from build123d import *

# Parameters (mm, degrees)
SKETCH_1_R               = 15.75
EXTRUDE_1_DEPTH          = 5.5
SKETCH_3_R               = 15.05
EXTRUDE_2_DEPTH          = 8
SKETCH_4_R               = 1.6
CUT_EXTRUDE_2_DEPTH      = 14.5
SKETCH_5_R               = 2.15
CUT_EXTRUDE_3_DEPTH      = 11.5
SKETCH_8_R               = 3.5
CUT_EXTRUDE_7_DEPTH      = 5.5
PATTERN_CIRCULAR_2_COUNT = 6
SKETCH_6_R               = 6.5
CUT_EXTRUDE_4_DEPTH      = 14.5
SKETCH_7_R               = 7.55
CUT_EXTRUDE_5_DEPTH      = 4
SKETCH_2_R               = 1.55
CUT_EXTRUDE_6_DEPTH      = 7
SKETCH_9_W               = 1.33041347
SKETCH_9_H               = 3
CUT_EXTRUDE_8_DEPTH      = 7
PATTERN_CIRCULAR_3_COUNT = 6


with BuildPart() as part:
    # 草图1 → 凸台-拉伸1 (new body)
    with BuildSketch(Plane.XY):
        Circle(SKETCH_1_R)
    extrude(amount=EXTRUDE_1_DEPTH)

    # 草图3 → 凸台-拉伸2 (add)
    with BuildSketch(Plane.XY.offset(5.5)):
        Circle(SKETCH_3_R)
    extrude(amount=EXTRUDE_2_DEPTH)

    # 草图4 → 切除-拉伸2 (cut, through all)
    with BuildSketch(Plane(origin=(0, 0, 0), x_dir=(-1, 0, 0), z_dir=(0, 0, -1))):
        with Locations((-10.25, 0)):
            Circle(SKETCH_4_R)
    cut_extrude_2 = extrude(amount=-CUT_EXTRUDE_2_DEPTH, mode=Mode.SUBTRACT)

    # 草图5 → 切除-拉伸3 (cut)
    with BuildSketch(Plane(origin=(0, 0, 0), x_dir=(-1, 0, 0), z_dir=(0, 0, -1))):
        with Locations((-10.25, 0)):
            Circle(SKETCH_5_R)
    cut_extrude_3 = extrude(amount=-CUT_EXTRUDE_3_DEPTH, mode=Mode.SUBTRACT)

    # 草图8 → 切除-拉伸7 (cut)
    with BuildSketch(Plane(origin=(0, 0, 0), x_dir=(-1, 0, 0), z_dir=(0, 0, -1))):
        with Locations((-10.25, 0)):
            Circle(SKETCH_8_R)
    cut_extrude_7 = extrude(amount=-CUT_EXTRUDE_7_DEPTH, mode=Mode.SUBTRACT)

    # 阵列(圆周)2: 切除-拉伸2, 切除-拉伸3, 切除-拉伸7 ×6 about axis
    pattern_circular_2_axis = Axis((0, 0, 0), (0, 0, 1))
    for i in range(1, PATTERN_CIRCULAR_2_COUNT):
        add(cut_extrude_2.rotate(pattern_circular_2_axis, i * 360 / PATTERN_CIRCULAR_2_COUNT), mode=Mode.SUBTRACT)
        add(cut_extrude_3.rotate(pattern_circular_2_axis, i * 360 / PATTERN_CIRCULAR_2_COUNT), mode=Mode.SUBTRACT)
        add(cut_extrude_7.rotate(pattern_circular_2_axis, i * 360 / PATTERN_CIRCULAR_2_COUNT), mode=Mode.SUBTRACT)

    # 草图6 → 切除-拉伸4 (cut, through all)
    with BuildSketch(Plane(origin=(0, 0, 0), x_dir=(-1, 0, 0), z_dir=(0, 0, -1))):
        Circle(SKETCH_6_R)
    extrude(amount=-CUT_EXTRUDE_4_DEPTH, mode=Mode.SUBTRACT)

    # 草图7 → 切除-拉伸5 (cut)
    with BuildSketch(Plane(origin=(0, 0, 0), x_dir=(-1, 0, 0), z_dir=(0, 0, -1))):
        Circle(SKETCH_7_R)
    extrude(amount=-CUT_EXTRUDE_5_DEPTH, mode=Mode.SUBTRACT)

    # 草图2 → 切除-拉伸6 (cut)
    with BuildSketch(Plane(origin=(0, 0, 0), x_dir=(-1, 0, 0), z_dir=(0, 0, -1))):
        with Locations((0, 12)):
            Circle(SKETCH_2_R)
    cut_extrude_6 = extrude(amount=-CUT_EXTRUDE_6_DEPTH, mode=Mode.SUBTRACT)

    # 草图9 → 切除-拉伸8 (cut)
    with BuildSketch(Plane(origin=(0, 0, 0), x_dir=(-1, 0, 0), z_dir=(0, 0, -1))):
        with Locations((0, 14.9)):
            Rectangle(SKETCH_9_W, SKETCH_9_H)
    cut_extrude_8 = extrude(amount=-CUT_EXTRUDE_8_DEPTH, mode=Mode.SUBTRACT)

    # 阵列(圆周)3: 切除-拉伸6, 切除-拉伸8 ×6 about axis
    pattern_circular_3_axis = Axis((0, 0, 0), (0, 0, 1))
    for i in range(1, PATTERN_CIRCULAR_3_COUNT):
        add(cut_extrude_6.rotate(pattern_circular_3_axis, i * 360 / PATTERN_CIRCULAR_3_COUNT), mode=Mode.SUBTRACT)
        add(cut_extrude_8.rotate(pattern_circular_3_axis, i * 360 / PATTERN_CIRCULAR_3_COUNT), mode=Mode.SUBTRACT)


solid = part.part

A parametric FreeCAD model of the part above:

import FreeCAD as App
import Part
import Sketcher
from FreeCAD import Vector


def add_polygon(sketch, points):
    """Adds a closed chain of lines whose ends are joined by coincident constraints."""
    first, n = sketch.GeometryCount, len(points)
    for a, b in zip(points, points[1:] + points[:1]):
        sketch.addGeometry(Part.LineSegment(App.Vector(*a, 0), App.Vector(*b, 0)), False)
    for i in range(n):
        sketch.addConstraint(Sketcher.Constraint("Coincident", first + i, 2, first + (i + 1) % n, 1))

doc = App.newDocument("Part")
params = doc.addObject("Spreadsheet::Sheet", "Params")
for row, (alias, value) in enumerate([
    ("sketch1_diameter", "31.5 mm"),
    ("pad1_length", "5.5 mm"),
    ("sketch2_diameter", "30.1 mm"),
    ("pad2_length", "8 mm"),
    ("sketch3_diameter", "3.2 mm"),
    ("sketch4_diameter", "4.3 mm"),
    ("pocket2_length", "11.5 mm"),
    ("sketch5_diameter", "7 mm"),
    ("pocket3_length", "5.5 mm"),
    ("sketch6_diameter", "13 mm"),
    ("sketch7_diameter", "15.1 mm"),
    ("pocket5_length", "4 mm"),
    ("sketch8_diameter", "3.1 mm"),
    ("pocket6_length", "7 mm"),
    ("sketch9_height", "3 mm"),
    ("pocket7_length", "7 mm"),
], start=1):
    params.set(f"A{row}", alias)
    params.set(f"B{row}", "=" + value)
    params.setAlias(f"B{row}", alias)

body = doc.addObject("PartDesign::Body", "Body")

# Sketch on XY plane
sketch1 = body.newObject("Sketcher::SketchObject", "Sketch")
sketch1.AttachmentSupport = (doc.getObject("XY_Plane"), [""])
sketch1.MapMode = "FlatFace"
sketch1.addGeometry(Part.Circle(Vector(0, 0, 0), Vector(0, 0, 1), 16), False)
sketch1.addConstraint([
    Sketcher.Constraint("Coincident", 0, 3, -1, 1),
    Sketcher.Constraint("Diameter", 0, 31.5),
])
sketch1.setExpression("Constraints[1]", "Params.sketch1_diameter")
pad1 = body.newObject("PartDesign::Pad", "Pad")
pad1.Profile = sketch1
pad1.setExpression("Length", "Params.pad1_length")

# Sketch on XY plane
sketch2 = body.newObject("Sketcher::SketchObject", "Sketch001")
sketch2.AttachmentSupport = (doc.getObject("XY_Plane"), [""])
sketch2.MapMode = "FlatFace"
sketch2.AttachmentOffset = App.Placement(Vector(0, 0, 5.5), App.Rotation())
sketch2.addGeometry(Part.Circle(Vector(0, 0, 0), Vector(0, 0, 1), 15), False)
sketch2.addConstraint([
    Sketcher.Constraint("Coincident", 0, 3, -1, 1),
    Sketcher.Constraint("Diameter", 0, 30.1),
])
sketch2.setExpression("Constraints[1]", "Params.sketch2_diameter")
pad2 = body.newObject("PartDesign::Pad", "Pad001")
pad2.Profile = sketch2
pad2.setExpression("Length", "Params.pad2_length")

# Sketch on XY plane
sketch3 = body.newObject("Sketcher::SketchObject", "Sketch002")
sketch3.AttachmentSupport = (doc.getObject("XY_Plane"), [""])
sketch3.MapMode = "FlatFace"
sketch3.addGeometry(Part.Circle(Vector(10.2, 0, 0), Vector(0, 0, 1), 1.6), False)
sketch3.addConstraint([
    Sketcher.Constraint("PointOnObject", 0, 3, -1),
    Sketcher.Constraint("Diameter", 0, 3.2),
    Sketcher.Constraint("DistanceX", -1, 1, 0, 3, 10.25),
])
sketch3.setExpression("Constraints[1]", "Params.sketch3_diameter")
pocket1 = body.newObject("PartDesign::Pocket", "Pocket")
pocket1.Profile = sketch3
pocket1.Type = "ThroughAll"
pocket1.Reversed = True

# Sketch on XY plane
sketch4 = body.newObject("Sketcher::SketchObject", "Sketch003")
sketch4.AttachmentSupport = (doc.getObject("XY_Plane"), [""])
sketch4.MapMode = "FlatFace"
sketch4.addGeometry(Part.Circle(Vector(10.2, 0, 0), Vector(0, 0, 1), 2.1), False)
sketch4.addConstraint([
    Sketcher.Constraint("PointOnObject", 0, 3, -1),
    Sketcher.Constraint("Diameter", 0, 4.3),
    Sketcher.Constraint("DistanceX", -1, 1, 0, 3, 10.25),
])
sketch4.setExpression("Constraints[1]", "Params.sketch4_diameter")
pocket2 = body.newObject("PartDesign::Pocket", "Pocket001")
pocket2.Profile = sketch4
pocket2.setExpression("Length", "Params.pocket2_length")
pocket2.Reversed = True

# Sketch on XY plane
sketch5 = body.newObject("Sketcher::SketchObject", "Sketch004")
sketch5.AttachmentSupport = (doc.getObject("XY_Plane"), [""])
sketch5.MapMode = "FlatFace"
sketch5.addGeometry(Part.Circle(Vector(10.2, 0, 0), Vector(0, 0, 1), 3.5), False)
sketch5.addConstraint([
    Sketcher.Constraint("PointOnObject", 0, 3, -1),
    Sketcher.Constraint("Diameter", 0, 7.0),
    Sketcher.Constraint("DistanceX", -1, 1, 0, 3, 10.25),
])
sketch5.setExpression("Constraints[1]", "Params.sketch5_diameter")
pocket3 = body.newObject("PartDesign::Pocket", "Pocket002")
pocket3.Profile = sketch5
pocket3.setExpression("Length", "Params.pocket3_length")
pocket3.Reversed = True
doc.recompute()

polarpattern = body.newObject("PartDesign::PolarPattern", "PolarPattern")
polarpattern.Originals = [pocket1, pocket2, pocket3]
polarpattern.Axis = (doc.getObject("Z_Axis"), [""])
polarpattern.Angle = 360
polarpattern.Occurrences = 6
body.Tip = polarpattern

# Sketch on XY plane
sketch6 = body.newObject("Sketcher::SketchObject", "Sketch005")
sketch6.AttachmentSupport = (doc.getObject("XY_Plane"), [""])
sketch6.MapMode = "FlatFace"
sketch6.addGeometry(Part.Circle(Vector(0, 0, 0), Vector(0, 0, 1), 6), False)
sketch6.addConstraint([
    Sketcher.Constraint("Coincident", 0, 3, -1, 1),
    Sketcher.Constraint("Diameter", 0, 13.0),
])
sketch6.setExpression("Constraints[1]", "Params.sketch6_diameter")
pocket4 = body.newObject("PartDesign::Pocket", "Pocket003")
pocket4.Profile = sketch6
pocket4.Type = "ThroughAll"
pocket4.Reversed = True

# Sketch on XY plane
sketch7 = body.newObject("Sketcher::SketchObject", "Sketch006")
sketch7.AttachmentSupport = (doc.getObject("XY_Plane"), [""])
sketch7.MapMode = "FlatFace"
sketch7.addGeometry(Part.Circle(Vector(0, 0, 0), Vector(0, 0, 1), 8), False)
sketch7.addConstraint([
    Sketcher.Constraint("Coincident", 0, 3, -1, 1),
    Sketcher.Constraint("Diameter", 0, 15.1),
])
sketch7.setExpression("Constraints[1]", "Params.sketch7_diameter")
pocket5 = body.newObject("PartDesign::Pocket", "Pocket004")
pocket5.Profile = sketch7
pocket5.setExpression("Length", "Params.pocket5_length")
pocket5.Reversed = True

# Sketch on XY plane
sketch8 = body.newObject("Sketcher::SketchObject", "Sketch007")
sketch8.AttachmentSupport = (doc.getObject("XY_Plane"), [""])
sketch8.MapMode = "FlatFace"
sketch8.addGeometry(Part.Circle(Vector(0, 12, 0), Vector(0, 0, 1), 1.6), False)
sketch8.addConstraint([
    Sketcher.Constraint("PointOnObject", 0, 3, -2),
    Sketcher.Constraint("Diameter", 0, 3.1),
    Sketcher.Constraint("DistanceY", -1, 1, 0, 3, 12.0),
])
sketch8.setExpression("Constraints[1]", "Params.sketch8_diameter")
pocket6 = body.newObject("PartDesign::Pocket", "Pocket005")
pocket6.Profile = sketch8
pocket6.setExpression("Length", "Params.pocket6_length")
pocket6.Reversed = True

# Sketch on XY plane
sketch9 = body.newObject("Sketcher::SketchObject", "Sketch008")
sketch9.AttachmentSupport = (doc.getObject("XY_Plane"), [""])
sketch9.MapMode = "FlatFace"
add_polygon(sketch9, [(0.7, 16.4), (0.7, 13.4), (-0.7, 13.4), (-0.7, 16.4)])  # lines 0-3
sketch9.addConstraint([
    Sketcher.Constraint("Vertical", 0),
    Sketcher.Constraint("Horizontal", 1),
    Sketcher.Constraint("Vertical", 2),
    Sketcher.Constraint("Horizontal", 3),
    Sketcher.Constraint("DistanceY", 0, 2, 0, 1, 3.0),
    Sketcher.Constraint("DistanceY", -1, 1, 0, 2, 13.4),
    Sketcher.Constraint("DistanceX", 1, 2, 1, 1, 1.330413),
    Sketcher.Constraint("DistanceX", -1, 1, 0, 2, 0.665207),
])
sketch9.setExpression("Constraints[8]", "Params.sketch9_height")
pocket7 = body.newObject("PartDesign::Pocket", "Pocket006")
pocket7.Profile = sketch9
pocket7.setExpression("Length", "Params.pocket7_length")
pocket7.Reversed = True
doc.recompute()

polarpattern2 = body.newObject("PartDesign::PolarPattern", "PolarPattern001")
polarpattern2.Originals = [pocket6, pocket7]
polarpattern2.Axis = (doc.getObject("Z_Axis"), [""])
polarpattern2.Angle = 360
polarpattern2.Occurrences = 6
body.Tip = polarpattern2

doc.recompute()
